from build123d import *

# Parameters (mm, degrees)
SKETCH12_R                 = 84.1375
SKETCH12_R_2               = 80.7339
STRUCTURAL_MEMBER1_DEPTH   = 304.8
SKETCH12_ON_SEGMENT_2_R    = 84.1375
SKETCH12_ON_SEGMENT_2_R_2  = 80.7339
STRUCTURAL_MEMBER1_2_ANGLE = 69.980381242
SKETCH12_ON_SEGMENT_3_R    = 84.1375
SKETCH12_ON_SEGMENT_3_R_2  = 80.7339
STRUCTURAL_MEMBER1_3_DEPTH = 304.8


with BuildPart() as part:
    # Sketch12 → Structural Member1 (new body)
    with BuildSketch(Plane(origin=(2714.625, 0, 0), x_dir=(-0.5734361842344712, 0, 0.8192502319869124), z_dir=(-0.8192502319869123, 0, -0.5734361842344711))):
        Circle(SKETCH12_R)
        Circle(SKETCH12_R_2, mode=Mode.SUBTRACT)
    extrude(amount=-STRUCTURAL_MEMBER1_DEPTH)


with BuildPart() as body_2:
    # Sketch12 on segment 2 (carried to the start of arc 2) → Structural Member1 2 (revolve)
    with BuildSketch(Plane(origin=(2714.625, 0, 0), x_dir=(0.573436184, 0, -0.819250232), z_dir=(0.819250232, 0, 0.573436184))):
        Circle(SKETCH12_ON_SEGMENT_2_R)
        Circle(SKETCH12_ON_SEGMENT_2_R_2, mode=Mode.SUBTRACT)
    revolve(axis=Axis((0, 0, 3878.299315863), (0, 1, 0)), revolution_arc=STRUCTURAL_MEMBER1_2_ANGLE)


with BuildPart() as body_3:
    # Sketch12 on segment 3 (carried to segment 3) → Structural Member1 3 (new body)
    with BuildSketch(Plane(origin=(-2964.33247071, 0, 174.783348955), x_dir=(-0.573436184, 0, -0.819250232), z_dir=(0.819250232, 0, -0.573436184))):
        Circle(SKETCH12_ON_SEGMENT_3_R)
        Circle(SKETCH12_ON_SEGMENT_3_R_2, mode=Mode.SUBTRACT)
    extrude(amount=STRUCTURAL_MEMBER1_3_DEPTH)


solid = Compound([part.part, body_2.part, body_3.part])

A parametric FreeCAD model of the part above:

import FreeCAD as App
import Part
import Sketcher

V = App.Vector
Q = App.Units.Quantity

doc = App.newDocument("Part")
body = doc.addObject("PartDesign::Body", "Body")

# Sketch on an angled plane
sketch1 = body.newObject("Sketcher::SketchObject", "Sketch")
sketch1.Placement = App.Placement(V(2714.625, 0, 0), App.Rotation(V(-0.573436184, 0, 0.819250232), V(0, 1, 0), V(-0.819250232, 0, -0.573436184), "ZXY"))
sketch1.addGeometry([
    Part.Circle(V(0, 0, 0), V(0, 0, 1), 84.1375),
    Part.Circle(V(0, 0, 0), V(0, 0, 1), 80.7339),
], False)
sketch1.addConstraint([
    Sketcher.Constraint("Coincident", 0, 3, -1, 1),
    Sketcher.Constraint("Coincident", 1, 3, -1, 1),
    Sketcher.Constraint("Diameter", 0, Q("6.625 in")),
    Sketcher.Constraint("Diameter", 1, Q("6.357 in")),
])
pad1 = body.newObject("PartDesign::Pad", "Pad")
pad1.Profile = sketch1
pad1.Length = Q("12 in")
pad1.Reversed = True
body2 = doc.addObject("PartDesign::Body", "Body001")

# Sketch on an angled plane
sketch2 = body2.newObject("Sketcher::SketchObject", "Sketch001")
sketch2.Placement = App.Placement(V(2714.625, 0, 0), App.Rotation(V(0.573436184, 0, -0.819250232), V(0, 1, 0), V(0.819250232, 0, 0.573436184), "ZXY"))
sketch2.addGeometry([
    Part.Circle(V(0, 0, 0), V(0, 0, 1), 84.1375),
    Part.Circle(V(0, 0, 0), V(0, 0, 1), 80.7339),
], False)
sketch2.addGeometry(Part.LineSegment(V(-4733.961815, 0, 0), V(-4733.961815, 10, 0)), True)  # axis
sketch2.addConstraint([
    Sketcher.Constraint("Vertical", 2),
    Sketcher.Constraint("Coincident", 0, 3, -1, 1),
    Sketcher.Constraint("Coincident", 1, 3, -1, 1),
    Sketcher.Constraint("PointOnObject", 2, 1, -1),
    Sketcher.Constraint("Diameter", 0, Q("6.625 in")),
    Sketcher.Constraint("Diameter", 1, Q("6.357 in")),
    Sketcher.Constraint("DistanceY", 2, 1, 2, 2, Q("10 mm")),
    Sketcher.Constraint("DistanceX", 2, 1, -1, 1, Q("4733.961815 mm")),
])
revolution = body2.newObject("PartDesign::Revolution", "Revolution")
revolution.Profile = sketch2
revolution.ReferenceAxis = (sketch2, ["Axis0"])
revolution.Angle = 69.980381
body3 = doc.addObject("PartDesign::Body", "Body002")

# Sketch on an angled plane
sketch3 = body3.newObject("Sketcher::SketchObject", "Sketch002")
sketch3.Placement = App.Placement(V(-2964.332471, 0, 174.783349), App.Rotation(V(-0.573436184, 0, -0.819250232), V(0, 1, 0), V(0.819250232, 0, -0.573436184), "ZXY"))
sketch3.addGeometry([
    Part.Circle(V(0, 0, 0), V(0, 0, 1), 84.1375),
    Part.Circle(V(0, 0, 0), V(0, 0, 1), 80.7339),
], False)
sketch3.addConstraint([
    Sketcher.Constraint("Coincident", 0, 3, -1, 1),
    Sketcher.Constraint("Coincident", 1, 3, -1, 1),
    Sketcher.Constraint("Diameter", 0, Q("6.625 in")),
    Sketcher.Constraint("Diameter", 1, Q("6.357 in")),
])
pad2 = body3.newObject("PartDesign::Pad", "Pad001")
pad2.Profile = sketch3
pad2.Length = Q("12 in")

doc.recompute()
